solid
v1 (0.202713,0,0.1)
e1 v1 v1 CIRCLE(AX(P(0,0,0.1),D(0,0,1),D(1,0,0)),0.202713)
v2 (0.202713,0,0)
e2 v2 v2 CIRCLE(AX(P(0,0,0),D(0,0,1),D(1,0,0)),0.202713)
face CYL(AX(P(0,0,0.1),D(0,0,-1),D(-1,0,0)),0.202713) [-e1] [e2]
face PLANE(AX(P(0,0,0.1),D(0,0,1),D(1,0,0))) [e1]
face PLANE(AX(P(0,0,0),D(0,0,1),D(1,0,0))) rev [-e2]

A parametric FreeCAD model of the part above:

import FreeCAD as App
import Part
import Sketcher
from FreeCAD import Vector

doc = App.newDocument("Part")
body = doc.addObject("PartDesign::Body", "Body")

sketch1 = body.newObject("Sketcher::SketchObject", "Sketch")
sketch1.AttachmentSupport = (doc.getObject("XY_Plane"), [""])
sketch1.MapMode = "FlatFace"
sketch1.addGeometry(Part.Circle(Vector(0, 0, 0), Vector(0, 0, 1), 0.202713), False)
sketch1.addConstraint([
    Sketcher.Constraint("Coincident", 0, 3, -1, 1),
    Sketcher.Constraint("Diameter", 0, 0.405425),
])
pad1 = body.newObject("PartDesign::Pad", "Pad")
pad1.Profile = sketch1
pad1.Length = 0.1

doc.recompute()
